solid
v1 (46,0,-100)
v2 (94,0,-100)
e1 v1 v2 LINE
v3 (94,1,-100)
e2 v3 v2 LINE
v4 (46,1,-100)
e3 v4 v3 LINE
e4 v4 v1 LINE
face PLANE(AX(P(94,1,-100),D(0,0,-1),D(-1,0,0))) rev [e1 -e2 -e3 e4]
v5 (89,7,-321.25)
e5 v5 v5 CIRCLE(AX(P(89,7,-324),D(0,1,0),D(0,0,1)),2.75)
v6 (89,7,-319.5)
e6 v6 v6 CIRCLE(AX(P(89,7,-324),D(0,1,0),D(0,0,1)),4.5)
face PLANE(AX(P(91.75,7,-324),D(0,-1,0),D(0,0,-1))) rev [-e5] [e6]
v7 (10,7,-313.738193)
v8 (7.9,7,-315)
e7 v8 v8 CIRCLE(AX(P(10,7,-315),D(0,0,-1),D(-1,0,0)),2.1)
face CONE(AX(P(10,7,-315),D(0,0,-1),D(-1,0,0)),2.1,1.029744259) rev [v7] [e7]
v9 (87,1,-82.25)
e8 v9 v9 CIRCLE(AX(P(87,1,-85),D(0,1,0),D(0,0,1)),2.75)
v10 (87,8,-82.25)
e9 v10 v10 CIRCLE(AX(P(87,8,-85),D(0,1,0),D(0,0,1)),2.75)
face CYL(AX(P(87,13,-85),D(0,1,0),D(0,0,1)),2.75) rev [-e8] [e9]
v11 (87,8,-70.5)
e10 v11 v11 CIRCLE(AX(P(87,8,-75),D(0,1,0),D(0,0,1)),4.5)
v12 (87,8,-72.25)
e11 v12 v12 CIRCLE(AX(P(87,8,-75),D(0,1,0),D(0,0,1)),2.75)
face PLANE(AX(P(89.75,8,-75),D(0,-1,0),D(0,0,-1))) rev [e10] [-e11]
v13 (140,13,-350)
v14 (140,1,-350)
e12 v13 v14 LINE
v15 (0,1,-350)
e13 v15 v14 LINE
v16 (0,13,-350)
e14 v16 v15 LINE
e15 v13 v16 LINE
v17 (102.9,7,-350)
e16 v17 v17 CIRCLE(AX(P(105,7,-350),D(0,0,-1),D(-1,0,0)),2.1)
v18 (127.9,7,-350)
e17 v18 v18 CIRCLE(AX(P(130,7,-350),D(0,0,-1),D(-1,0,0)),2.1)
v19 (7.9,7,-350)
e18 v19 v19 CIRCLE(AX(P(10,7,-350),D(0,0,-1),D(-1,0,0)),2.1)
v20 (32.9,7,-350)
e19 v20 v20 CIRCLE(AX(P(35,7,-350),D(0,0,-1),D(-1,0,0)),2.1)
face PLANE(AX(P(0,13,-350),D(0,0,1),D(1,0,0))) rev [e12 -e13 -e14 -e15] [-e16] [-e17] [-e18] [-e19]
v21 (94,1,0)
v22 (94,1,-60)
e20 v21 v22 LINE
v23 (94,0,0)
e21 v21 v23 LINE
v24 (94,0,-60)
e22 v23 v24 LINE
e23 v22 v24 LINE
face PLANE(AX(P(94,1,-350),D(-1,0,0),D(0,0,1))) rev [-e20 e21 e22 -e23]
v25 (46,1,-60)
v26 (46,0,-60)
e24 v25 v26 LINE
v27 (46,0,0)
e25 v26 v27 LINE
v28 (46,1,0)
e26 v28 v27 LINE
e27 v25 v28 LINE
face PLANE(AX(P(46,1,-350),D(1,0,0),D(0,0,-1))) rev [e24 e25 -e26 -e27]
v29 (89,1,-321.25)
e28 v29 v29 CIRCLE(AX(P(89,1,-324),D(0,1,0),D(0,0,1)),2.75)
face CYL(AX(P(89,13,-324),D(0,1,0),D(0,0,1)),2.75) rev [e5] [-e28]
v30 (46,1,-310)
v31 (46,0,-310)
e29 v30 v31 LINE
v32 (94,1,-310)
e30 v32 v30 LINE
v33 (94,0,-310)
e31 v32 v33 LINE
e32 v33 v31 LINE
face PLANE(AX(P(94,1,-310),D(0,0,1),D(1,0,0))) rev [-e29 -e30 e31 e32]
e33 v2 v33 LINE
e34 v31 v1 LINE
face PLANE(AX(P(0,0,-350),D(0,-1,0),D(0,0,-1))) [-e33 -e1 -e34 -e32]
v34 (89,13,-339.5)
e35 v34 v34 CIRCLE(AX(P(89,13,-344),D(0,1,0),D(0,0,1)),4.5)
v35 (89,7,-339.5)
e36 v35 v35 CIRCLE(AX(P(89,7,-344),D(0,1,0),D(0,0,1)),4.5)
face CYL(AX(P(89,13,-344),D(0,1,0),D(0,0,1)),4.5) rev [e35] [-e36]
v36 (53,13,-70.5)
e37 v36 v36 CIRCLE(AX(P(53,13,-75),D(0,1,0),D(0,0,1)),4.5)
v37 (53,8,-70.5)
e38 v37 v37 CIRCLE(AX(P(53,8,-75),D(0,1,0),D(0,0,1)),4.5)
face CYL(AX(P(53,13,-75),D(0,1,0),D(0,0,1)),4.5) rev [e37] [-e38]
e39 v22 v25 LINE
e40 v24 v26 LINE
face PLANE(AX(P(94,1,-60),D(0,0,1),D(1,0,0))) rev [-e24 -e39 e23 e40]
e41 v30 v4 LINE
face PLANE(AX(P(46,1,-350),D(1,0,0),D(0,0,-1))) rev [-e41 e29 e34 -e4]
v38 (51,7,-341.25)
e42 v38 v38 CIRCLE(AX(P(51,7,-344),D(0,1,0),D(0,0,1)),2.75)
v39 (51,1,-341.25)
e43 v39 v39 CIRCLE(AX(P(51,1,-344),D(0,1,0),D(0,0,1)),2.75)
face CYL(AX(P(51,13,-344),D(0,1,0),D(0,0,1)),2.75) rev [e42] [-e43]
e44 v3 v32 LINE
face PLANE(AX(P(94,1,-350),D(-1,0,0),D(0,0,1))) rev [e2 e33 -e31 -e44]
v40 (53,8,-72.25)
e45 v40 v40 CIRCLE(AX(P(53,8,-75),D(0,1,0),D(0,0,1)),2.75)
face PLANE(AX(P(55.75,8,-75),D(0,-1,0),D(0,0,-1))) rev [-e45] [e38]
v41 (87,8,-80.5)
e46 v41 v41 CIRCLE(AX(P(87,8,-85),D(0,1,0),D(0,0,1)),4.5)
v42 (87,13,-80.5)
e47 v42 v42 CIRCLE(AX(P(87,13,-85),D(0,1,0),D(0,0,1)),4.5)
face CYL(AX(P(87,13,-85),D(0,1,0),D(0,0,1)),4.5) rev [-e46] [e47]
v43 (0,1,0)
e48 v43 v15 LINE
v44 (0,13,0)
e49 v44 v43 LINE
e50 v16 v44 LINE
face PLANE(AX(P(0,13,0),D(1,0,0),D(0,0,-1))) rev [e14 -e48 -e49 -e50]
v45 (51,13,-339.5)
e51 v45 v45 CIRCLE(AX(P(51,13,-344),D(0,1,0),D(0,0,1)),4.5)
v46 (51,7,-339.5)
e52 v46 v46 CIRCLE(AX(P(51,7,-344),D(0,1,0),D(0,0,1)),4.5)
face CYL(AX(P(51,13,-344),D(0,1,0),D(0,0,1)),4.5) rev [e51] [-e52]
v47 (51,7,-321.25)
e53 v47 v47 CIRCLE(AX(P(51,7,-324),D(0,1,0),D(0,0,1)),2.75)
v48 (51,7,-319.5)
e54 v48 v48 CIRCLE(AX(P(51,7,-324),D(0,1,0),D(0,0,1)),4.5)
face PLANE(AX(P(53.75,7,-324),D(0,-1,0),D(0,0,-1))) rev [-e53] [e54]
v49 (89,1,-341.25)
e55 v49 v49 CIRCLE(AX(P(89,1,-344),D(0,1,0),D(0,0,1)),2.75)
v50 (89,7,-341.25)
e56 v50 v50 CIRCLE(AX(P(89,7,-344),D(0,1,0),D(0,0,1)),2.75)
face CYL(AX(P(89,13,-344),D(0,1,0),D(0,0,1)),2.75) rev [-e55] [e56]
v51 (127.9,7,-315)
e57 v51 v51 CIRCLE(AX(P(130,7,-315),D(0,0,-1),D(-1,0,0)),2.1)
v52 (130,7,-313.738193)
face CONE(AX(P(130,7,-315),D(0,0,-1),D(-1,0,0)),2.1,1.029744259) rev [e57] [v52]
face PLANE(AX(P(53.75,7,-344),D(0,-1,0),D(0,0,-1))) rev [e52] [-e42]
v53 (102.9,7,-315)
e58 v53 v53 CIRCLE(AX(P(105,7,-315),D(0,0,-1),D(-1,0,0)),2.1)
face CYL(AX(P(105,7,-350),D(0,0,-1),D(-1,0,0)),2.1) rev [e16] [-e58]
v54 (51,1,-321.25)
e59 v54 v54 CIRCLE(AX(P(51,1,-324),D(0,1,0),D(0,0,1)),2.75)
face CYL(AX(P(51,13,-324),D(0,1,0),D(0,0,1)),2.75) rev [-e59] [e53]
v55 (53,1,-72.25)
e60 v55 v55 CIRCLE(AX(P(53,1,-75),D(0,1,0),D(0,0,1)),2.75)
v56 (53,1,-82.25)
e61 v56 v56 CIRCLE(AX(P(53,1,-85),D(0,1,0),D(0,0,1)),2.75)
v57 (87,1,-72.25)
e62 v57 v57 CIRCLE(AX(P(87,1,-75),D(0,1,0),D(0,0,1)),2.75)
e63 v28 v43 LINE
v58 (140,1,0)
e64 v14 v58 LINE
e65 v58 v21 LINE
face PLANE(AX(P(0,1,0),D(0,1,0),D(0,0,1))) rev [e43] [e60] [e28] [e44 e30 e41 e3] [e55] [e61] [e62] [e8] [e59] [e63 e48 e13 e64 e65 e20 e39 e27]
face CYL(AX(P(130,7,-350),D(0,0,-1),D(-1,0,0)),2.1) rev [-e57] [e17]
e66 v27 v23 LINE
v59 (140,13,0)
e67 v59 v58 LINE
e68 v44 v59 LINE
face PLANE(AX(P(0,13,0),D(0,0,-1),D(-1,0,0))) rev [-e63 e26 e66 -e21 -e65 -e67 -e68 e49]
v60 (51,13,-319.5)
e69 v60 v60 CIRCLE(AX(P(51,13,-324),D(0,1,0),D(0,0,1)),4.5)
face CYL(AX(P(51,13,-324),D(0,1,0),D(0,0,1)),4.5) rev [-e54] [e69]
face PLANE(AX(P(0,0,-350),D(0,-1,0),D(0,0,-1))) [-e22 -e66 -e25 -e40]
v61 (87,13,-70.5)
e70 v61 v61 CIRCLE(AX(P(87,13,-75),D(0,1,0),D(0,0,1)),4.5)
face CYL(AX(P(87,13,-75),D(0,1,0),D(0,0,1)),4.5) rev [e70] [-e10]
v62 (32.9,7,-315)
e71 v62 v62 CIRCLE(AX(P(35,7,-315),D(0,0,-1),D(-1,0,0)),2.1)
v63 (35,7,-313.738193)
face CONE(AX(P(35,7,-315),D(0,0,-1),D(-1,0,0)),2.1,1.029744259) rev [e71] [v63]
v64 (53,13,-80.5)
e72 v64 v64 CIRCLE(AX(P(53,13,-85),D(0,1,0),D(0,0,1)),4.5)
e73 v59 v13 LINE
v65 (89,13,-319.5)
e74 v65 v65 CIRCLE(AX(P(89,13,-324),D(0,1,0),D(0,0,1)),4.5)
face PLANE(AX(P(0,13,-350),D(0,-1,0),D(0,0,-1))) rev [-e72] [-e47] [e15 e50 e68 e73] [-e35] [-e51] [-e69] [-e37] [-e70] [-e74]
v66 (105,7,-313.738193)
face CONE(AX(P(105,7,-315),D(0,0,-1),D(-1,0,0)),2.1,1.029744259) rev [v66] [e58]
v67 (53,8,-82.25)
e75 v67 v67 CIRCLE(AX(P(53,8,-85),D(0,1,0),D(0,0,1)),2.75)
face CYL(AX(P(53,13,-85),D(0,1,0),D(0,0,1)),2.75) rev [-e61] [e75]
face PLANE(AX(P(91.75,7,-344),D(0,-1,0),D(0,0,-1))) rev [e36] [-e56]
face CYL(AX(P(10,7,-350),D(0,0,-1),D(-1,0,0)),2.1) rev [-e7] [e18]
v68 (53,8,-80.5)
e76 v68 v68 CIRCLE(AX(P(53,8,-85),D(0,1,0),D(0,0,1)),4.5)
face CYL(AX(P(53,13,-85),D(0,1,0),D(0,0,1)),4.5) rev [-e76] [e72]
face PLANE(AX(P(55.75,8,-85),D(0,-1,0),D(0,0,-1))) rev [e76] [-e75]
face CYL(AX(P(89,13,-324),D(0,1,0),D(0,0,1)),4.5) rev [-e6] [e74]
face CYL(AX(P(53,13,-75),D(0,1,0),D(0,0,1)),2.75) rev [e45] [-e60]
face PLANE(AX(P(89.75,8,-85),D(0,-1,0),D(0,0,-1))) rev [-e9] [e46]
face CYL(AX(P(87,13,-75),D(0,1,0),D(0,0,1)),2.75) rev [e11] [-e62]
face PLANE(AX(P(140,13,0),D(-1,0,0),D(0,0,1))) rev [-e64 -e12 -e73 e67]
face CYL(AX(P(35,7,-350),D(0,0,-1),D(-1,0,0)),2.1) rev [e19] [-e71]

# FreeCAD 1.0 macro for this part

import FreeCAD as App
import Part
import Sketcher
from FreeCAD import Vector
Q = App.Units.Quantity


def add_polygon(sketch, points):
    """Adds a closed chain of lines whose ends are joined by coincident constraints."""
    first, n = sketch.GeometryCount, len(points)
    for a, b in zip(points, points[1:] + points[:1]):
        sketch.addGeometry(Part.LineSegment(App.Vector(*a, 0), App.Vector(*b, 0)), False)
    for i in range(n):
        sketch.addConstraint(Sketcher.Constraint("Coincident", first + i, 2, first + (i + 1) % n, 1))

doc = App.newDocument("Part")
body = doc.addObject("PartDesign::Body", "Body")

# Sketch on XZ plane
sketch1 = body.newObject("Sketcher::SketchObject", "Sketch")
sketch1.AttachmentSupport = (doc.getObject("XZ_Plane"), [""])
sketch1.MapMode = "FlatFace"
add_polygon(sketch1, [(0, -350), (0, 0), (140, 0), (140, -350)])  # lines 0-3
sketch1.addConstraint(Sketcher.Constraint("Vertical", 0))
sketch1.addConstraint(Sketcher.Constraint("Horizontal", 1))
sketch1.addConstraint(Sketcher.Constraint("Vertical", 2))
sketch1.addConstraint(Sketcher.Constraint("Horizontal", 3))
sketch1.addConstraint(Sketcher.Constraint("Coincident", 0, 2, -1, 1))
sketch1.addConstraint(Sketcher.Constraint("DistanceX", 1, 1, 1, 2, Q("140 mm")))
sketch1.addConstraint(Sketcher.Constraint("DistanceY", 0, 1, 0, 2, Q("350 mm")))
pad1 = body.newObject("PartDesign::Pad", "Pad")
pad1.Profile = sketch1
pad1.Length = 13
pad1.Reversed = True

# Sketch on XZ plane
sketch2 = body.newObject("Sketcher::SketchObject", "Sketch001")
sketch2.AttachmentSupport = (doc.getObject("XZ_Plane"), [""])
sketch2.MapMode = "FlatFace"
add_polygon(sketch2, [(0, 0), (0, -350), (46, -350), (46, 0)])  # lines 0-3
add_polygon(sketch2, [(94, 0), (94, -350), (140, -350), (140, 0)])  # lines 4-7
sketch2.addConstraint(Sketcher.Constraint("Vertical", 0))
sketch2.addConstraint(Sketcher.Constraint("Horizontal", 1))
sketch2.addConstraint(Sketcher.Constraint("Vertical", 2))
sketch2.addConstraint(Sketcher.Constraint("Horizontal", 3))
sketch2.addConstraint(Sketcher.Constraint("Vertical", 4))
sketch2.addConstraint(Sketcher.Constraint("Horizontal", 5))
sketch2.addConstraint(Sketcher.Constraint("Vertical", 6))
sketch2.addConstraint(Sketcher.Constraint("Horizontal", 7))
sketch2.addConstraint(Sketcher.Constraint("Coincident", 3, 2, -1, 1))
sketch2.addConstraint(Sketcher.Constraint("PointOnObject", 6, 2, -1))
sketch2.addConstraint(Sketcher.Constraint("Horizontal", 1, 2, 4, 2))
sketch2.addConstraint(Sketcher.Constraint("Equal", 3, 5))
sketch2.addConstraint(Sketcher.Constraint("DistanceX", 1, 1, 1, 2, Q("46 mm")))
sketch2.addConstraint(Sketcher.Constraint("DistanceY", 0, 2, 0, 1, Q("350 mm")))
sketch2.addConstraint(Sketcher.Constraint("DistanceX", -1, 1, 4, 2, Q("94 mm")))
pocket1 = body.newObject("PartDesign::Pocket", "Pocket")
pocket1.Profile = sketch2
pocket1.Length = 1

# Sketch on XY plane
sketch3 = body.newObject("Sketcher::SketchObject", "Sketch002")
sketch3.AttachmentSupport = (doc.getObject("XY_Plane"), [""])
sketch3.MapMode = "FlatFace"
sketch3.AttachmentOffset = App.Placement(Vector(0, 0, -350), App.Rotation())
sketch3.addGeometry(Part.Circle(Vector(130, 7, 0), Vector(0, 0, 1), 2.1), False)
sketch3.addGeometry(Part.Circle(Vector(105, 7, 0), Vector(0, 0, 1), 2.1), False)
sketch3.addGeometry(Part.Circle(Vector(35, 7, 0), Vector(0, 0, 1), 2.1), False)
sketch3.addGeometry(Part.Circle(Vector(10, 7, 0), Vector(0, 0, 1), 2.1), False)
sketch3.addConstraint(Sketcher.Constraint("Equal", 0, 1))
sketch3.addConstraint(Sketcher.Constraint("Equal", 1, 2))
sketch3.addConstraint(Sketcher.Constraint("Equal", 2, 3))
sketch3.addConstraint(Sketcher.Constraint("Horizontal", 0, 3, 1, 3))
sketch3.addConstraint(Sketcher.Constraint("Horizontal", 1, 3, 2, 3))
sketch3.addConstraint(Sketcher.Constraint("Horizontal", 2, 3, 3, 3))
sketch3.addConstraint(Sketcher.Constraint("Diameter", 0, Q("4.2 mm")))
sketch3.addConstraint(Sketcher.Constraint("DistanceX", -1, 1, 0, 3, Q("130 mm")))
sketch3.addConstraint(Sketcher.Constraint("DistanceY", -1, 1, 0, 3, Q("7 mm")))
sketch3.addConstraint(Sketcher.Constraint("DistanceX", -1, 1, 1, 3, Q("105 mm")))
sketch3.addConstraint(Sketcher.Constraint("DistanceX", -1, 1, 2, 3, Q("35 mm")))
sketch3.addConstraint(Sketcher.Constraint("DistanceX", -1, 1, 3, 3, Q("10 mm")))
doc.recompute()
hole = body.newObject("PartDesign::Hole", "Hole")
hole.Profile = sketch3
hole.ThreadType = "None"
hole.Diameter = 4.2
hole.DepthType = "Dimension"
hole.Depth = 35
hole.DrillPoint = "Angled"
hole.DrillPointAngle = 118
hole.Reversed = True

# Sketch on XZ plane
sketch4 = body.newObject("Sketcher::SketchObject", "Sketch003")
sketch4.AttachmentSupport = (doc.getObject("XZ_Plane"), [""])
sketch4.MapMode = "FlatFace"
add_polygon(sketch4, [(94, -100), (94, -60), (46, -60), (46, -100)])  # lines 0-3
add_polygon(sketch4, [(94, -350), (94, -310), (46, -310), (46, -350)])  # lines 4-7
sketch4.addConstraint(Sketcher.Constraint("Vertical", 0))
sketch4.addConstraint(Sketcher.Constraint("Horizontal", 1))
sketch4.addConstraint(Sketcher.Constraint("Vertical", 2))
sketch4.addConstraint(Sketcher.Constraint("Horizontal", 3))
sketch4.addConstraint(Sketcher.Constraint("Vertical", 4))
sketch4.addConstraint(Sketcher.Constraint("Horizontal", 5))
sketch4.addConstraint(Sketcher.Constraint("Vertical", 6))
sketch4.addConstraint(Sketcher.Constraint("Horizontal", 7))
sketch4.addConstraint(Sketcher.Constraint("Vertical", 3, 2, 4, 2))
sketch4.addConstraint(Sketcher.Constraint("Vertical", 2, 2, 5, 2))
sketch4.addConstraint(Sketcher.Constraint("Equal", 2, 4))
sketch4.addConstraint(Sketcher.Constraint("DistanceX", 1, 2, 1, 1, Q("48 mm")))
sketch4.addConstraint(Sketcher.Constraint("DistanceY", 0, 1, 0, 2, Q("40 mm")))
sketch4.addConstraint(Sketcher.Constraint("DistanceX", -1, 1, 0, 2, Q("94 mm")))
sketch4.addConstraint(Sketcher.Constraint("DistanceY", 0, 2, -1, 1, Q("60 mm")))
sketch4.addConstraint(Sketcher.Constraint("DistanceY", 4, 2, -1, 1, Q("310 mm")))
pocket2 = body.newObject("PartDesign::Pocket", "Pocket001")
pocket2.Profile = sketch4
pocket2.Length = 1

# Sketch on XZ plane
sketch5 = body.newObject("Sketcher::SketchObject", "Sketch004")
sketch5.AttachmentSupport = (doc.getObject("XZ_Plane"), [""])
sketch5.MapMode = "FlatFace"
sketch5.AttachmentOffset = App.Placement(Vector(0, 0, -13), App.Rotation())
sketch5.addGeometry(Part.Circle(Vector(51, -344, 0), Vector(0, 0, 1), 2.8), False)
sketch5.addGeometry(Part.Circle(Vector(89, -344, 0), Vector(0, 0, 1), 2.8), False)
sketch5.addGeometry(Part.Circle(Vector(51, -324, 0), Vector(0, 0, 1), 2.8), False)
sketch5.addGeometry(Part.Circle(Vector(89, -324, 0), Vector(0, 0, 1), 2.8), False)
sketch5.addConstraint(Sketcher.Constraint("Equal", 0, 1))
sketch5.addConstraint(Sketcher.Constraint("Equal", 1, 2))
sketch5.addConstraint(Sketcher.Constraint("Equal", 2, 3))
sketch5.addConstraint(Sketcher.Constraint("Horizontal", 0, 3, 1, 3))
sketch5.addConstraint(Sketcher.Constraint("Horizontal", 2, 3, 3, 3))
sketch5.addConstraint(Sketcher.Constraint("Vertical", 0, 3, 2, 3))
sketch5.addConstraint(Sketcher.Constraint("Vertical", 1, 3, 3, 3))
sketch5.addConstraint(Sketcher.Constraint("Diameter", 0, Q("5.5 mm")))
sketch5.addConstraint(Sketcher.Constraint("DistanceX", -1, 1, 0, 3, Q("51 mm")))
sketch5.addConstraint(Sketcher.Constraint("DistanceY", 0, 3, -1, 1, Q("344 mm")))
sketch5.addConstraint(Sketcher.Constraint("DistanceX", -1, 1, 1, 3, Q("89 mm")))
sketch5.addConstraint(Sketcher.Constraint("DistanceY", 2, 3, -1, 1, Q("324 mm")))
doc.recompute()
hole2 = body.newObject("PartDesign::Hole", "Hole001")
hole2.Profile = sketch5
hole2.ThreadType = "None"
hole2.Diameter = 5.5
hole2.DepthType = "ThroughAll"
hole2.HoleCutType = "Counterbore"
hole2.HoleCutDiameter = 9
hole2.HoleCutDepth = 6
hole2.Reversed = True

# Sketch on XZ plane
sketch6 = body.newObject("Sketcher::SketchObject", "Sketch005")
sketch6.AttachmentSupport = (doc.getObject("XZ_Plane"), [""])
sketch6.MapMode = "FlatFace"
sketch6.AttachmentOffset = App.Placement(Vector(0, 0, -13), App.Rotation())
sketch6.addGeometry(Part.Circle(Vector(53, -85, 0), Vector(0, 0, 1), 2.8), False)
sketch6.addGeometry(Part.Circle(Vector(87, -85, 0), Vector(0, 0, 1), 2.8), False)
sketch6.addGeometry(Part.Circle(Vector(53, -75, 0), Vector(0, 0, 1), 2.8), False)
sketch6.addGeometry(Part.Circle(Vector(87, -75, 0), Vector(0, 0, 1), 2.8), False)
sketch6.addConstraint(Sketcher.Constraint("Equal", 0, 1))
sketch6.addConstraint(Sketcher.Constraint("Equal", 1, 2))
sketch6.addConstraint(Sketcher.Constraint("Equal", 2, 3))
sketch6.addConstraint(Sketcher.Constraint("Horizontal", 0, 3, 1, 3))
sketch6.addConstraint(Sketcher.Constraint("Horizontal", 2, 3, 3, 3))
sketch6.addConstraint(Sketcher.Constraint("Vertical", 0, 3, 2, 3))
sketch6.addConstraint(Sketcher.Constraint("Vertical", 1, 3, 3, 3))
sketch6.addConstraint(Sketcher.Constraint("Diameter", 0, Q("5.5 mm")))
sketch6.addConstraint(Sketcher.Constraint("DistanceX", -1, 1, 0, 3, Q("53 mm")))
sketch6.addConstraint(Sketcher.Constraint("DistanceY", 0, 3, -1, 1, Q("85 mm")))
sketch6.addConstraint(Sketcher.Constraint("DistanceX", -1, 1, 1, 3, Q("87 mm")))
sketch6.addConstraint(Sketcher.Constraint("DistanceY", 2, 3, -1, 1, Q("75 mm")))
doc.recompute()
hole3 = body.newObject("PartDesign::Hole", "Hole002")
hole3.Profile = sketch6
hole3.ThreadType = "None"
hole3.Diameter = 5.5
hole3.DepthType = "ThroughAll"
hole3.HoleCutType = "Counterbore"
hole3.HoleCutDiameter = 9
hole3.HoleCutDepth = 5
hole3.Reversed = True

doc.recompute()
